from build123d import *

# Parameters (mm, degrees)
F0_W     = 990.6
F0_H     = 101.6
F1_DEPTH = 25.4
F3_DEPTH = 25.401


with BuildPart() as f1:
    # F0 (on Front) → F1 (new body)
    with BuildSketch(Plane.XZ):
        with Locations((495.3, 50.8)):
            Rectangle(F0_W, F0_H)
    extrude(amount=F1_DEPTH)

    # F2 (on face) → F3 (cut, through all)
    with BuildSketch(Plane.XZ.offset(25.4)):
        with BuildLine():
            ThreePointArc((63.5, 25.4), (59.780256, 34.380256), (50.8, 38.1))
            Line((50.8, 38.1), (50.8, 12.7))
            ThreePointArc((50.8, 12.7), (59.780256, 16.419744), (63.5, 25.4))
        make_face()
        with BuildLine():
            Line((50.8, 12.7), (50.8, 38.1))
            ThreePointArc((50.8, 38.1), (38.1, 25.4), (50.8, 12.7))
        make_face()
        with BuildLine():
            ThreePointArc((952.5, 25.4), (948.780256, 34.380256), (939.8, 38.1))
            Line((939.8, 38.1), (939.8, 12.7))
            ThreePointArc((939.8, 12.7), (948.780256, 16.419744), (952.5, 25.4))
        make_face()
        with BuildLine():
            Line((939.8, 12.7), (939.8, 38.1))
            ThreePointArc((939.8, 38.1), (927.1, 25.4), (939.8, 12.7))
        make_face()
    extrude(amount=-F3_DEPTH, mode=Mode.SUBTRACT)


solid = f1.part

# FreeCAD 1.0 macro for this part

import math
import FreeCAD as App
import Part
import Sketcher
from FreeCAD import Vector
Q = App.Units.Quantity


def add_polygon(sketch, points):
    """Adds a closed chain of lines whose ends are joined by coincident constraints."""
    first, n = sketch.GeometryCount, len(points)
    for a, b in zip(points, points[1:] + points[:1]):
        sketch.addGeometry(Part.LineSegment(App.Vector(*a, 0), App.Vector(*b, 0)), False)
    for i in range(n):
        sketch.addConstraint(Sketcher.Constraint("Coincident", first + i, 2, first + (i + 1) % n, 1))

doc = App.newDocument("Part")
body = doc.addObject("PartDesign::Body", "Body")

sketch1 = body.newObject("Sketcher::SketchObject", "Sketch")
sketch1.AttachmentSupport = (doc.getObject("XZ_Plane"), [""])
sketch1.MapMode = "FlatFace"
add_polygon(sketch1, [(0, 102), (0, 0), (991, 0), (991, 102)])
sketch1.addConstraint(Sketcher.Constraint("Vertical", 0))
sketch1.addConstraint(Sketcher.Constraint("Horizontal", 1))
sketch1.addConstraint(Sketcher.Constraint("Vertical", 2))
sketch1.addConstraint(Sketcher.Constraint("Horizontal", 3))
sketch1.addConstraint(Sketcher.Constraint("Coincident", 0, 2, -1, 1))
sketch1.addConstraint(Sketcher.Constraint("DistanceX", 1, 1, 1, 2, Q("39 in")))
sketch1.addConstraint(Sketcher.Constraint("DistanceY", 0, 2, 0, 1, Q("4 in")))
pad1 = body.newObject("PartDesign::Pad", "Pad")
pad1.Profile = sketch1
pad1.Length = Q("1 in")

sketch2 = body.newObject("Sketcher::SketchObject", "Sketch001")
sketch2.AttachmentSupport = (doc.getObject("XZ_Plane"), [""])
sketch2.MapMode = "FlatFace"
sketch2.AttachmentOffset = App.Placement(Vector(0, 0, 1 * 25.4), App.Rotation())
sketch2.addGeometry(Part.ArcOfCircle(Part.Circle(Vector(51, 25, 0), Vector(0, 0, 1), 13), math.radians(0), math.radians(90)), False)
sketch2.addGeometry(Part.ArcOfCircle(Part.Circle(Vector(51, 25, 0), Vector(0, 0, 1), 13), math.radians(90), math.radians(270)), False)
sketch2.addGeometry(Part.ArcOfCircle(Part.Circle(Vector(51, 25, 0), Vector(0, 0, 1), 13), math.radians(-90), math.radians(0)), False)
sketch2.addGeometry(Part.ArcOfCircle(Part.Circle(Vector(940, 25, 0), Vector(0, 0, 1), 13), math.radians(0), math.radians(90)), False)
sketch2.addGeometry(Part.ArcOfCircle(Part.Circle(Vector(940, 25, 0), Vector(0, 0, 1), 13), math.radians(90), math.radians(270)), False)
sketch2.addGeometry(Part.ArcOfCircle(Part.Circle(Vector(940, 25, 0), Vector(0, 0, 1), 13), math.radians(-90), math.radians(0)), False)
sketch2.addConstraint(Sketcher.Constraint("Tangent", 0, 2, 1, 1))
sketch2.addConstraint(Sketcher.Constraint("Tangent", 1, 2, 2, 1))
sketch2.addConstraint(Sketcher.Constraint("Tangent", 2, 2, 0, 1))
sketch2.addConstraint(Sketcher.Constraint("Tangent", 3, 2, 4, 1))
sketch2.addConstraint(Sketcher.Constraint("Tangent", 4, 2, 5, 1))
sketch2.addConstraint(Sketcher.Constraint("Tangent", 5, 2, 3, 1))
sketch2.addConstraint(Sketcher.Constraint("Equal", 2, 3))
sketch2.addConstraint(Sketcher.Constraint("Horizontal", 2, 3, 3, 3))
sketch2.addConstraint(Sketcher.Constraint("Horizontal", 5, 3, 2, 2))
sketch2.addConstraint(Sketcher.Constraint("Horizontal", 2, 2, 5, 2))
sketch2.addConstraint(Sketcher.Constraint("Vertical", 2, 3, 0, 2))
sketch2.addConstraint(Sketcher.Constraint("Vertical", 0, 2, 1, 2))
sketch2.addConstraint(Sketcher.Constraint("Vertical", 5, 3, 3, 2))
sketch2.addConstraint(Sketcher.Constraint("Vertical", 3, 2, 4, 2))
sketch2.addConstraint(Sketcher.Constraint("Radius", 0, Q("0.5 in")))
sketch2.addConstraint(Sketcher.Constraint("DistanceX", -1, 1, 0, 3, Q("2 in")))
sketch2.addConstraint(Sketcher.Constraint("DistanceY", -1, 1, 0, 3, Q("1 in")))
sketch2.addConstraint(Sketcher.Constraint("DistanceX", -1, 1, 3, 3, Q("37 in")))
pocket1 = body.newObject("PartDesign::Pocket", "Pocket")
pocket1.Profile = sketch2
pocket1.Type = "ThroughAll"

doc.recompute()
